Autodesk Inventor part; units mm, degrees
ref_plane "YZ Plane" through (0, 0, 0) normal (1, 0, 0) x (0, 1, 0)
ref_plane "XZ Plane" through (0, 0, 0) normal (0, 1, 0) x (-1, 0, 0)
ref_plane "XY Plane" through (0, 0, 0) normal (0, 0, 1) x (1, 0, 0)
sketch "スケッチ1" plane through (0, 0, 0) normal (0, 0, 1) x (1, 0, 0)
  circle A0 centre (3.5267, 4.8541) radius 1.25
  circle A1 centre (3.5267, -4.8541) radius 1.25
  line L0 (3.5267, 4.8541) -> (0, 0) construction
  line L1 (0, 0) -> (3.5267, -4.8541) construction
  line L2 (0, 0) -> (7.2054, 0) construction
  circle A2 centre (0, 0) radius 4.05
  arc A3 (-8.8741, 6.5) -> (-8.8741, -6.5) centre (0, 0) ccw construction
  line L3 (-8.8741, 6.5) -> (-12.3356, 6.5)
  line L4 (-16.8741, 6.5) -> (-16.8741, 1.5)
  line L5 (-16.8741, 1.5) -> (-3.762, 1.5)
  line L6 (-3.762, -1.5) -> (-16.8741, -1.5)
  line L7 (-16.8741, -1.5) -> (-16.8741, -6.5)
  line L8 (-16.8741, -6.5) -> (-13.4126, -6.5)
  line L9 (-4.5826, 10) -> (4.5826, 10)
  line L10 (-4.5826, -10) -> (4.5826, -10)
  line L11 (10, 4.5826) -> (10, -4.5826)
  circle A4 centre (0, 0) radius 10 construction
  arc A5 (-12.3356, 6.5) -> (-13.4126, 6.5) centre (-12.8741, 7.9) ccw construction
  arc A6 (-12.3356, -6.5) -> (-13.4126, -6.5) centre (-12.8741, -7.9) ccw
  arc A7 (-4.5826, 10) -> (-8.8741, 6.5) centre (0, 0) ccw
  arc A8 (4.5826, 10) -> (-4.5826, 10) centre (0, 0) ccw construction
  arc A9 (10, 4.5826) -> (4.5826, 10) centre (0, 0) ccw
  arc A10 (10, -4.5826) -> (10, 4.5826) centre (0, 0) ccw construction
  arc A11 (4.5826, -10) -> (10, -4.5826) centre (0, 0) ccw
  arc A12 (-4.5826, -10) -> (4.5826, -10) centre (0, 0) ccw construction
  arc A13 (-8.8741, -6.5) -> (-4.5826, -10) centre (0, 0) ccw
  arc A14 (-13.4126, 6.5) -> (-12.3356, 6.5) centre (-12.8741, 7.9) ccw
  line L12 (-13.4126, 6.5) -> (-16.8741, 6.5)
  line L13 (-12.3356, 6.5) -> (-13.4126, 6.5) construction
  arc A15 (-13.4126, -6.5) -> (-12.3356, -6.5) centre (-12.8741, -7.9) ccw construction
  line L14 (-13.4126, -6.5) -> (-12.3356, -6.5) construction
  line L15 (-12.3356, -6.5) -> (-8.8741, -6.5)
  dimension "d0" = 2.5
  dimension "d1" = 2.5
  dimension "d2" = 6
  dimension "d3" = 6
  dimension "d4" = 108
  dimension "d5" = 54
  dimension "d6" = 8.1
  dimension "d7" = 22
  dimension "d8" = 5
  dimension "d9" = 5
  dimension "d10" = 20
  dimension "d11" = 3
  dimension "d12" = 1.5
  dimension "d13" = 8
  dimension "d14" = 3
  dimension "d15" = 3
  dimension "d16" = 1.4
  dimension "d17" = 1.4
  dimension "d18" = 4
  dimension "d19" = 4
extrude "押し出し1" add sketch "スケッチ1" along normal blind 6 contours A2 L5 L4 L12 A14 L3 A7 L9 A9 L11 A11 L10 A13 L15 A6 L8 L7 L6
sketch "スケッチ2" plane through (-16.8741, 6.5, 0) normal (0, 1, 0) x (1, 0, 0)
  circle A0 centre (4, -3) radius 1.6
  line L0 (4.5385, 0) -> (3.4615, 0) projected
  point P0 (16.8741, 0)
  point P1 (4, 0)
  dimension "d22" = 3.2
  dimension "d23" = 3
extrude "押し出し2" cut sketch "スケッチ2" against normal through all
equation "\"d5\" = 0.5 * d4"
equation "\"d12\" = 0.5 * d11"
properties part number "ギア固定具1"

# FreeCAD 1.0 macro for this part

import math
import FreeCAD as App
import Part
import Sketcher
from FreeCAD import Vector

doc = App.newDocument("Part")
params = doc.addObject("Spreadsheet::Sheet", "Params")
for row, (alias, value) in enumerate([
    ("sketch1_radius", "11 mm"),
    ("sketch1_diameter", "2.5 mm"),
    ("sketch1_radius2", "1.5 mm"),
    ("sketch1_height", "5 mm"),
    ("sketch1_radius3", "4.05 mm"),
    ("pad1_length", "6 mm"),
    ("sketch2_diameter", "3.2 mm"),
], start=1):
    params.set(f"A{row}", alias)
    params.set(f"B{row}", "=" + value)
    params.setAlias(f"B{row}", alias)

body = doc.addObject("PartDesign::Body", "Body")

# Sketch on XY plane
sketch1 = body.newObject("Sketcher::SketchObject", "Sketch")
sketch1.AttachmentSupport = (doc.getObject("XY_Plane"), [""])
sketch1.MapMode = "FlatFace"
sketch1.addGeometry([
    Part.ArcOfCircle(Part.Circle(Vector(0, 0, 0), Vector(0, 0, 1), 4), math.radians(-158), math.radians(158)),  # 0
    Part.LineSegment(Vector(-3.8, -1.5, 0), Vector(-16.9, -1.5, 0)),  # 1
    Part.LineSegment(Vector(-16.9, -1.5, 0), Vector(-16.9, -6.5, 0)),  # 2
    Part.LineSegment(Vector(-16.9, -6.5, 0), Vector(-13.4, -6.5, 0)),  # 3
    Part.ArcOfCircle(Part.Circle(Vector(-12.9, -7.9, 0), Vector(0, 0, 1), 1.5), math.radians(69), math.radians(111)),  # 4
    Part.LineSegment(Vector(-12.3, -6.5, 0), Vector(-8.9, -6.5, 0)),  # 5
    Part.ArcOfCircle(Part.Circle(Vector(0, 0, 0), Vector(0, 0, 1), 11), math.radians(-144), math.radians(-115)),  # 6
    Part.LineSegment(Vector(-4.6, -10, 0), Vector(4.6, -10, 0)),  # 7
    Part.ArcOfCircle(Part.Circle(Vector(0, 0, 0), Vector(0, 0, 1), 11), math.radians(-65), math.radians(-25)),  # 8
    Part.LineSegment(Vector(10, -4.6, 0), Vector(10, 4.6, 0)),  # 9
    Part.ArcOfCircle(Part.Circle(Vector(0, 0, 0), Vector(0, 0, 1), 11), math.radians(25), math.radians(65)),  # 10
    Part.LineSegment(Vector(4.6, 10, 0), Vector(-4.6, 10, 0)),  # 11
    Part.ArcOfCircle(Part.Circle(Vector(0, 0, 0), Vector(0, 0, 1), 11), math.radians(115), math.radians(144)),  # 12
    Part.LineSegment(Vector(-8.9, 6.5, 0), Vector(-12.3, 6.5, 0)),  # 13
    Part.ArcOfCircle(Part.Circle(Vector(-12.9, 7.9, 0), Vector(0, 0, 1), 1.5), math.radians(-111), math.radians(-69)),  # 14
    Part.LineSegment(Vector(-13.4, 6.5, 0), Vector(-16.9, 6.5, 0)),  # 15
    Part.LineSegment(Vector(-16.9, 6.5, 0), Vector(-16.9, 1.5, 0)),  # 16
    Part.LineSegment(Vector(-16.9, 1.5, 0), Vector(-3.8, 1.5, 0)),  # 17
    Part.Circle(Vector(3.5, -4.9, 0), Vector(0, 0, 1), 1.2),  # 18
    Part.Circle(Vector(3.5, 4.9, 0), Vector(0, 0, 1), 1.2),  # 19
], False)
sketch1.addConstraint([
    Sketcher.Constraint("Coincident", 0, 1, 1, 1),
    Sketcher.Constraint("Coincident", 1, 2, 2, 1),
    Sketcher.Constraint("Coincident", 2, 2, 3, 1),
    Sketcher.Constraint("Coincident", 3, 2, 4, 2),
    Sketcher.Constraint("Coincident", 4, 1, 5, 1),
    Sketcher.Constraint("Coincident", 5, 2, 6, 1),
    Sketcher.Constraint("Coincident", 6, 2, 7, 1),
    Sketcher.Constraint("Coincident", 7, 2, 8, 1),
    Sketcher.Constraint("Coincident", 8, 2, 9, 1),
    Sketcher.Constraint("Coincident", 9, 2, 10, 1),
    Sketcher.Constraint("Coincident", 10, 2, 11, 1),
    Sketcher.Constraint("Coincident", 11, 2, 12, 1),
    Sketcher.Constraint("Coincident", 12, 2, 13, 1),
    Sketcher.Constraint("Coincident", 13, 2, 14, 2),
    Sketcher.Constraint("Coincident", 14, 1, 15, 1),
    Sketcher.Constraint("Coincident", 15, 2, 16, 1),
    Sketcher.Constraint("Coincident", 16, 2, 17, 1),
    Sketcher.Constraint("Coincident", 17, 2, 0, 2),
    Sketcher.Constraint("Horizontal", 1),
    Sketcher.Constraint("Vertical", 2),
    Sketcher.Constraint("Horizontal", 3),
    Sketcher.Constraint("Horizontal", 5),
    Sketcher.Constraint("Horizontal", 7),
    Sketcher.Constraint("Vertical", 9),
    Sketcher.Constraint("Horizontal", 11),
    Sketcher.Constraint("Horizontal", 13),
    Sketcher.Constraint("Horizontal", 15),
    Sketcher.Constraint("Vertical", 16),
    Sketcher.Constraint("Horizontal", 17),
    Sketcher.Constraint("Coincident", 0, 3, -1, 1),
    Sketcher.Constraint("Coincident", 6, 3, -1, 1),
    Sketcher.Constraint("Coincident", 8, 3, -1, 1),
    Sketcher.Constraint("Coincident", 10, 3, -1, 1),
    Sketcher.Constraint("Coincident", 12, 3, -1, 1),
    Sketcher.Constraint("Equal", 6, 8),
    Sketcher.Constraint("Equal", 8, 10),
    Sketcher.Constraint("Equal", 10, 12),
    Sketcher.Constraint("Equal", 4, 14),
    Sketcher.Constraint("Equal", 18, 19),
    Sketcher.Constraint("Symmetric", 4, 3, 14, 3, -1),
    Sketcher.Constraint("Symmetric", 18, 3, 19, 3, -1),
    Sketcher.Constraint("Symmetric", 2, 2, 15, 2, -1),
    Sketcher.Constraint("Horizontal", 3, 2, 4, 1),
    Sketcher.Constraint("Horizontal", 13, 2, 14, 1),
    Sketcher.Constraint("Vertical", 7, 2, 10, 2),
    Sketcher.Constraint("Vertical", 0, 1, 17, 2),
    Sketcher.Constraint("Equal", 3, 5),
    Sketcher.Constraint("Equal", 11, 9),
    Sketcher.Constraint("Radius", 6, 11.0),
    Sketcher.Constraint("Diameter", 18, 2.5),
    Sketcher.Constraint("Radius", 4, 1.5),
    Sketcher.Constraint("DistanceY", 2, 2, 2, 1, 5.0),
    Sketcher.Constraint("Radius", 0, 4.05),
    Sketcher.Constraint("DistanceX", 1, 2, 4, 3, 4.0),
    Sketcher.Constraint("DistanceY", 0, 1, 12, 2, 8.0),
    Sketcher.Constraint("DistanceY", 4, 3, 2, 2, 1.4),
    Sketcher.Constraint("DistanceY", 6, 2, -1, 1, 10.0),
    Sketcher.Constraint("DistanceY", 18, 3, -1, 1, 4.854),
    Sketcher.Constraint("DistanceX", 18, 3, 7, 2, 1.056),
])
sketch1.setExpression("Constraints[48]", "Params.sketch1_radius")
sketch1.setExpression("Constraints[49]", "Params.sketch1_diameter")
sketch1.setExpression("Constraints[50]", "Params.sketch1_radius2")
sketch1.setExpression("Constraints[51]", "Params.sketch1_height")
sketch1.setExpression("Constraints[52]", "Params.sketch1_radius3")
pad1 = body.newObject("PartDesign::Pad", "Pad")
pad1.Profile = sketch1
pad1.setExpression("Length", "Params.pad1_length")

# Sketch on XZ plane
sketch2 = body.newObject("Sketcher::SketchObject", "Sketch001")
sketch2.AttachmentSupport = (doc.getObject("XZ_Plane"), [""])
sketch2.MapMode = "FlatFace"
sketch2.AttachmentOffset = App.Placement(Vector(0, 0, -6.5), App.Rotation())
sketch2.addGeometry(Part.Circle(Vector(-12.9, 3, 0), Vector(0, 0, 1), 1.6), False)
sketch2.addConstraint([
    Sketcher.Constraint("Diameter", 0, 3.2),
    Sketcher.Constraint("DistanceY", -1, 1, 0, 3, 3.0),
    Sketcher.Constraint("DistanceX", 0, 3, -1, 1, 12.874),
])
sketch2.setExpression("Constraints[0]", "Params.sketch2_diameter")
pocket1 = body.newObject("PartDesign::Pocket", "Pocket")
pocket1.Profile = sketch2
pocket1.Type = "ThroughAll"
pocket1.Reversed = True

doc.recompute()
